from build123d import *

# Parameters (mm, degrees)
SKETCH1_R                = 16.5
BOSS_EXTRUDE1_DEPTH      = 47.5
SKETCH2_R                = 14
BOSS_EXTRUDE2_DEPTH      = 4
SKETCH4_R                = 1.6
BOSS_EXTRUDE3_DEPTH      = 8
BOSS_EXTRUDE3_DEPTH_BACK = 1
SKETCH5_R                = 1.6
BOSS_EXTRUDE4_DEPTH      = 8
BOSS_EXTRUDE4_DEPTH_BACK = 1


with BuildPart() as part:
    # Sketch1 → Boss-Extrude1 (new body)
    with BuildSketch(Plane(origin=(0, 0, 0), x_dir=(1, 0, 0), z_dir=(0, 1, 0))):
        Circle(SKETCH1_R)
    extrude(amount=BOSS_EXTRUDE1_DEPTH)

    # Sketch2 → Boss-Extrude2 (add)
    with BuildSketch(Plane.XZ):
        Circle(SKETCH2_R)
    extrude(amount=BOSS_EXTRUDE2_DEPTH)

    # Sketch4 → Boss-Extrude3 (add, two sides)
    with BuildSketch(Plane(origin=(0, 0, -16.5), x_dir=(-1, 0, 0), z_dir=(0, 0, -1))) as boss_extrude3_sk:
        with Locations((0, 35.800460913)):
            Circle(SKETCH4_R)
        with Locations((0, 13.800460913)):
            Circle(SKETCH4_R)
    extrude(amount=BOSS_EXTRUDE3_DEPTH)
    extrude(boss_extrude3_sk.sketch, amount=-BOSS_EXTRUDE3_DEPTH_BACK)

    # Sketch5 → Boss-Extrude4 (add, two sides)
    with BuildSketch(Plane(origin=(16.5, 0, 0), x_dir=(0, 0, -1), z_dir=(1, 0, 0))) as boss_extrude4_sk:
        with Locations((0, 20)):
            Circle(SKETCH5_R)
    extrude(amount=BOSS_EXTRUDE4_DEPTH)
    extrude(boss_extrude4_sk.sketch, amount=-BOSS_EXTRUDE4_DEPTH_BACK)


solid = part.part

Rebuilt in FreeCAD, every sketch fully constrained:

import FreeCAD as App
import Part
import Sketcher
from FreeCAD import Vector

doc = App.newDocument("Part")
body = doc.addObject("PartDesign::Body", "Body")

# Sketch on XZ plane
sketch1 = body.newObject("Sketcher::SketchObject", "Sketch")
sketch1.AttachmentSupport = (doc.getObject("XZ_Plane"), [""])
sketch1.MapMode = "FlatFace"
sketch1.addGeometry(Part.Circle(Vector(0, 0, 0), Vector(0, 0, 1), 16), False)
sketch1.addConstraint(Sketcher.Constraint("Coincident", 0, 3, -1, 1))
sketch1.addConstraint(Sketcher.Constraint("Diameter", 0, 33.0))
pad1 = body.newObject("PartDesign::Pad", "Pad")
pad1.Profile = sketch1
pad1.Length = 47.5
pad1.Reversed = True

# Sketch on XZ plane
sketch2 = body.newObject("Sketcher::SketchObject", "Sketch001")
sketch2.AttachmentSupport = (doc.getObject("XZ_Plane"), [""])
sketch2.MapMode = "FlatFace"
sketch2.addGeometry(Part.Circle(Vector(0, 0, 0), Vector(0, 0, 1), 14), False)
sketch2.addConstraint(Sketcher.Constraint("Coincident", 0, 3, -1, 1))
sketch2.addConstraint(Sketcher.Constraint("Diameter", 0, 28.0))
pad2 = body.newObject("PartDesign::Pad", "Pad001")
pad2.Profile = sketch2
pad2.Length = 4

# Sketch on XY plane
sketch3 = body.newObject("Sketcher::SketchObject", "Sketch002")
sketch3.AttachmentSupport = (doc.getObject("XY_Plane"), [""])
sketch3.MapMode = "FlatFace"
sketch3.AttachmentOffset = App.Placement(Vector(0, 0, -16.5), App.Rotation())
sketch3.addGeometry(Part.Circle(Vector(0, 35.8, 0), Vector(0, 0, 1), 1.6), False)
sketch3.addGeometry(Part.Circle(Vector(0, 13.8, 0), Vector(0, 0, 1), 1.6), False)
sketch3.addConstraint(Sketcher.Constraint("Equal", 0, 1))
sketch3.addConstraint(Sketcher.Constraint("PointOnObject", 0, 3, -2))
sketch3.addConstraint(Sketcher.Constraint("PointOnObject", 1, 3, -2))
sketch3.addConstraint(Sketcher.Constraint("Diameter", 0, 3.2))
sketch3.addConstraint(Sketcher.Constraint("DistanceY", 1, 3, 0, 3, 22.0))
sketch3.addConstraint(Sketcher.Constraint("DistanceY", -1, 1, 0, 3, 35.800461))
pad3 = body.newObject("PartDesign::Pad", "Pad002")
pad3.Profile = sketch3
pad3.Type = "TwoLengths"
pad3.Length = 8
pad3.Length2 = 1
pad3.Reversed = True

# Sketch on YZ plane
sketch4 = body.newObject("Sketcher::SketchObject", "Sketch003")
sketch4.AttachmentSupport = (doc.getObject("YZ_Plane"), [""])
sketch4.MapMode = "FlatFace"
sketch4.AttachmentOffset = App.Placement(Vector(0, 0, 16.5), App.Rotation())
sketch4.addGeometry(Part.Circle(Vector(20, 0, 0), Vector(0, 0, 1), 1.6), False)
sketch4.addConstraint(Sketcher.Constraint("PointOnObject", 0, 3, -1))
sketch4.addConstraint(Sketcher.Constraint("Diameter", 0, 3.2))
sketch4.addConstraint(Sketcher.Constraint("DistanceX", -1, 1, 0, 3, 20.0))
pad4 = body.newObject("PartDesign::Pad", "Pad003")
pad4.Profile = sketch4
pad4.Type = "TwoLengths"
pad4.Length = 8
pad4.Length2 = 1

doc.recompute()
